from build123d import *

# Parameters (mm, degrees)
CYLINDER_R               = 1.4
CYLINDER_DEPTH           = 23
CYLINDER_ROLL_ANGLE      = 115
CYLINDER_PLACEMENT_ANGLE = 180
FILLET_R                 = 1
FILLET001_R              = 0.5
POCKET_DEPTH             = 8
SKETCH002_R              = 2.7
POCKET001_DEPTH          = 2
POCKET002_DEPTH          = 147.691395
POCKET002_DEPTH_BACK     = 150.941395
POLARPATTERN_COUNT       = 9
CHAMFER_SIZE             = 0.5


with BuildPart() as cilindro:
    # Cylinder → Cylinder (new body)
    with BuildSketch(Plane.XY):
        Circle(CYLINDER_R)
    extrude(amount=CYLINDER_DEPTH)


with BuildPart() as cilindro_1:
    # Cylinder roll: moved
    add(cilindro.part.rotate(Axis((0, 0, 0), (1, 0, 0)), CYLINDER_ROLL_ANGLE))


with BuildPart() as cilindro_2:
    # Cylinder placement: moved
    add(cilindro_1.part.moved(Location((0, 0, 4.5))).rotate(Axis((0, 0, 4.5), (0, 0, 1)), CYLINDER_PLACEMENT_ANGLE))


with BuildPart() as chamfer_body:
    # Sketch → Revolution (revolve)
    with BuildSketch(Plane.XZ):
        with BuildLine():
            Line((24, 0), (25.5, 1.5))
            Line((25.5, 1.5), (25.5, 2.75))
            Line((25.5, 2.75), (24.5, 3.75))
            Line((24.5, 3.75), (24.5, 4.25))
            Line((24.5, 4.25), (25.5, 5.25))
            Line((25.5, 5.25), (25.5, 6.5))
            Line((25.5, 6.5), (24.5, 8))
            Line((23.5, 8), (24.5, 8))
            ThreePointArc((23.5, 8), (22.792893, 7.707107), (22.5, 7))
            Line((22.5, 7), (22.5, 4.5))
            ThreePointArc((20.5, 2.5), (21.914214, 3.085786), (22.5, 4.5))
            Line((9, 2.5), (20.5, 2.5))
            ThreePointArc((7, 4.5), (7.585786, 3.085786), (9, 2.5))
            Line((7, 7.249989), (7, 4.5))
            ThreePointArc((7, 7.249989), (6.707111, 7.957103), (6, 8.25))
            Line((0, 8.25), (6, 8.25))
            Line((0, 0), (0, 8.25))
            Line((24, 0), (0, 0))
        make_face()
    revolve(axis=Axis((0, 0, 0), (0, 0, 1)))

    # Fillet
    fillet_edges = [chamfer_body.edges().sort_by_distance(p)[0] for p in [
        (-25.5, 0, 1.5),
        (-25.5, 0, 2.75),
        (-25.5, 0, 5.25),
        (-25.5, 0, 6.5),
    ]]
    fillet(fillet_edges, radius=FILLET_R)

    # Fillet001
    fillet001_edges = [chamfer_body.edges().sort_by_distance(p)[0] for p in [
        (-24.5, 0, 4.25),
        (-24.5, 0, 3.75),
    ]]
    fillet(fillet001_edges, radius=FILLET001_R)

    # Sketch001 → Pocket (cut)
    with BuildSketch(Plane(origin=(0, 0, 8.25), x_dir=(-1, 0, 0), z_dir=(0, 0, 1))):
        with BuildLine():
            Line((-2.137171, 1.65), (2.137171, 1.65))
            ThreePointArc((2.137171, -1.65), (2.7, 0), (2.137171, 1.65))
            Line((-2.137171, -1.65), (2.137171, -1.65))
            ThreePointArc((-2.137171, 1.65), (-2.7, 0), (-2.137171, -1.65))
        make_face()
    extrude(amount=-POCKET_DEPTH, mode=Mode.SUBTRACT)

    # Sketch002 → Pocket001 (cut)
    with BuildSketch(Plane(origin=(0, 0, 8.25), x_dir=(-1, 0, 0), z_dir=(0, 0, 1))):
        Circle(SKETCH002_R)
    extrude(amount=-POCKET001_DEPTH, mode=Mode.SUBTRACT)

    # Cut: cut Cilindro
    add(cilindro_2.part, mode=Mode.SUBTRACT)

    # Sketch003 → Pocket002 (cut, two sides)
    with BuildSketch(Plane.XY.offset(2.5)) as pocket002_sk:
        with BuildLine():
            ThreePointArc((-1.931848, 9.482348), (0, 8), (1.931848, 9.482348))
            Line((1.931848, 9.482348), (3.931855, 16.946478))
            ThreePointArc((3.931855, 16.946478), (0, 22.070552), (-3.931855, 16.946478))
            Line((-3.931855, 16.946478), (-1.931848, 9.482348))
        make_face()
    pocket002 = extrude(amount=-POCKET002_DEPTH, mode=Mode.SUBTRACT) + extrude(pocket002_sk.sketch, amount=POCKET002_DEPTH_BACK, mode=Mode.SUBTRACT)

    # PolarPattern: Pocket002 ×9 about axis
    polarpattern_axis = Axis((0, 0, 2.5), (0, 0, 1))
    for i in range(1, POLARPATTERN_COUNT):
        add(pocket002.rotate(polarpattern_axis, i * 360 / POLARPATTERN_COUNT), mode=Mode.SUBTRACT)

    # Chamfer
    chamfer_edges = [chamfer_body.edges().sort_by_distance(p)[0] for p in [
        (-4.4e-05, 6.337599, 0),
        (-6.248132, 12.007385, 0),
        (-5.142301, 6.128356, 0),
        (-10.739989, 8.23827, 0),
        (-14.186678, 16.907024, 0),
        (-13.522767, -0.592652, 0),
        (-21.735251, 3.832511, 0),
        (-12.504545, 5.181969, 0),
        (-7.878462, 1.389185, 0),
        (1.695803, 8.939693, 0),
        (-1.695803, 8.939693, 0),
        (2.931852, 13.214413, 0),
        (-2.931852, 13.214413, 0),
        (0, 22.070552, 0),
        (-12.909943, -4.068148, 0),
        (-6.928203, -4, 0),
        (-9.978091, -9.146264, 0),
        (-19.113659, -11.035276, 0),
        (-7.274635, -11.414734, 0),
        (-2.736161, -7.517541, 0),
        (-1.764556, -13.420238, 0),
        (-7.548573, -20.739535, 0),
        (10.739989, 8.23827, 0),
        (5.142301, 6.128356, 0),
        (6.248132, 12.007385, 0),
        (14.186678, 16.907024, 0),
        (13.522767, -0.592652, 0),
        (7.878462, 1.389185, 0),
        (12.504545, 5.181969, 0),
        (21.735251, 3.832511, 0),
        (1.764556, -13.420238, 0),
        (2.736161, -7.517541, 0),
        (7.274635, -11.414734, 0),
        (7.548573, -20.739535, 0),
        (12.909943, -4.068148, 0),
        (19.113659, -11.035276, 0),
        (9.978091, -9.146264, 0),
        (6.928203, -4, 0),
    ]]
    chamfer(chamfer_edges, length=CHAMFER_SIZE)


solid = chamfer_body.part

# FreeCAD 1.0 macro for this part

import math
import FreeCAD as App
import Part
import Sketcher

V = App.Vector
Q = App.Units.Quantity


def edges_at(feature, points):
    """Names of the edges that pass closest to the given points."""
    edges = feature.Shape.Edges
    near = lambda p: min(range(len(edges)), key=lambda i: edges[i].distToShape(Part.Vertex(*p))[0])
    return sorted({f"Edge{near(p) + 1}" for p in points})

doc = App.newDocument("Part")
body = doc.addObject("PartDesign::Body", "Body")

sketch1 = body.newObject("Sketcher::SketchObject", "Sketch")
sketch1.AttachmentSupport = (doc.getObject("XY_Plane"), [""])
sketch1.MapMode = "FlatFace"
sketch1.addGeometry(Part.Circle(V(0, 0, 0), V(0, 0, 1), 1.4), False)
sketch1.addConstraint([
    Sketcher.Constraint("Coincident", 0, 3, -1, 1),
    Sketcher.Constraint("Diameter", 0, 2.8),
])
pad1 = body.newObject("PartDesign::Pad", "Pad")
pad1.Profile = sketch1
pad1.Length = 23
body2 = doc.addObject("PartDesign::Body", "Body001")
doc.recompute()

body.Placement = App.Placement(V(0, 0, 0), App.Rotation(V(1, 0, 0), 115))
boolean = body2.newObject("PartDesign::Boolean", "Boolean")
boolean.Type = "Fuse"
boolean.addObjects([body])
body3 = doc.addObject("PartDesign::Body", "Body002")
doc.recompute()

body2.Placement = App.Placement(V(0, 0, 4.5), App.Rotation(V(0, 0, 1), 180))
boolean2 = body3.newObject("PartDesign::Boolean", "Boolean001")
boolean2.Type = "Fuse"
boolean2.addObjects([body2])
body4 = doc.addObject("PartDesign::Body", "Body003")

sketch2 = body4.newObject("Sketcher::SketchObject", "Sketch001")
sketch2.AttachmentSupport = (doc.getObject("XZ_Plane003"), [""])
sketch2.MapMode = "FlatFace"
sketch2.addGeometry([
    Part.LineSegment(V(24, 0, 0), V(25.5, 1.5, 0)),
    Part.LineSegment(V(25.5, 1.5, 0), V(25.5, 2.8, 0)),
    Part.LineSegment(V(25.5, 2.8, 0), V(24.5, 3.8, 0)),
    Part.LineSegment(V(24.5, 3.8, 0), V(24.5, 4.2, 0)),
    Part.LineSegment(V(24.5, 4.2, 0), V(25.5, 5.2, 0)),
    Part.LineSegment(V(25.5, 5.2, 0), V(25.5, 6.5, 0)),
    Part.LineSegment(V(25.5, 6.5, 0), V(24.5, 8, 0)),
    Part.LineSegment(V(24.5, 8, 0), V(23.5, 8, 0)),
    Part.ArcOfCircle(Part.Circle(V(23.5, 7, 0), V(0, 0, 1), 1), math.radians(90), math.radians(180)),
    Part.LineSegment(V(22.5, 7, 0), V(22.5, 4.5, 0)),
    Part.ArcOfCircle(Part.Circle(V(20.5, 4.5, 0), V(0, 0, 1), 2), math.radians(-90), math.radians(0)),
    Part.LineSegment(V(20.5, 2.5, 0), V(9, 2.5, 0)),
    Part.ArcOfCircle(Part.Circle(V(9, 4.5, 0), V(0, 0, 1), 2), math.radians(180), math.radians(270)),
    Part.LineSegment(V(7, 4.5, 0), V(7, 7.2, 0)),
    Part.ArcOfCircle(Part.Circle(V(6, 7.3, 0), V(0, 0, 1), 1), math.radians(0), math.radians(90)),
    Part.LineSegment(V(6, 8.2, 0), V(0, 8.2, 0)),
    Part.LineSegment(V(0, 8.2, 0), V(0, 0, 0)),
    Part.LineSegment(V(0, 0, 0), V(24, 0, 0)),
], False)
sketch2.addConstraint([
    Sketcher.Constraint("Coincident", 0, 2, 1, 1),
    Sketcher.Constraint("Coincident", 1, 2, 2, 1),
    Sketcher.Constraint("Coincident", 2, 2, 3, 1),
    Sketcher.Constraint("Coincident", 3, 2, 4, 1),
    Sketcher.Constraint("Coincident", 4, 2, 5, 1),
    Sketcher.Constraint("Coincident", 5, 2, 6, 1),
    Sketcher.Constraint("Coincident", 6, 2, 7, 1),
    Sketcher.Constraint("Tangent", 7, 2, 8, 1),
    Sketcher.Constraint("Tangent", 8, 2, 9, 1),
    Sketcher.Constraint("Tangent", 9, 2, 10, 2),
    Sketcher.Constraint("Tangent", 10, 1, 11, 1),
    Sketcher.Constraint("Tangent", 11, 2, 12, 2),
    Sketcher.Constraint("Tangent", 12, 1, 13, 1),
    Sketcher.Constraint("Coincident", 13, 2, 14, 1),
    Sketcher.Constraint("Tangent", 14, 2, 15, 1),
    Sketcher.Constraint("Coincident", 15, 2, 16, 1),
    Sketcher.Constraint("Coincident", 16, 2, 17, 1),
    Sketcher.Constraint("Coincident", 17, 2, 0, 1),
    Sketcher.Constraint("Vertical", 1),
    Sketcher.Constraint("Vertical", 3),
    Sketcher.Constraint("Vertical", 5),
    Sketcher.Constraint("Horizontal", 7),
    Sketcher.Constraint("Vertical", 9),
    Sketcher.Constraint("Horizontal", 11),
    Sketcher.Constraint("Vertical", 13),
    Sketcher.Constraint("Horizontal", 15),
    Sketcher.Constraint("Vertical", 16),
    Sketcher.Constraint("Horizontal", 17),
    Sketcher.Constraint("Coincident", 16, 2, -1, 1),
    Sketcher.Constraint("Equal", 10, 12),
    Sketcher.Constraint("Equal", 8, 14),
    Sketcher.Constraint("Perpendicular", 0, 2),
    Sketcher.Constraint("Perpendicular", 2, 4),
    Sketcher.Constraint("Vertical", 1, 2, 4, 2),
    Sketcher.Constraint("Vertical", 3, 2, 6, 2),
    Sketcher.Constraint("Equal", 1, 5),
    Sketcher.Constraint("Equal", 2, 4),
    Sketcher.Constraint("Radius", 8, 0.999999),
    Sketcher.Constraint("Radius", 10, 1.999999),
    Sketcher.Constraint("DistanceX", 7, 2, 7, 1, 1.0),
    Sketcher.Constraint("DistanceX", 15, 2, 15, 1, 6.0),
    Sketcher.Constraint("DistanceX", 17, 1, 17, 2, 24.0),
    Sketcher.Constraint("DistanceX", 11, 2, 11, 1, 11.5),
    Sketcher.Constraint("DistanceY", 3, 1, 3, 2, 0.5),
    Sketcher.Constraint("DistanceY", 9, 2, 9, 1, 2.5),
    Sketcher.Constraint("DistanceY", -1, 1, 8, 3, 7.000001),
    Sketcher.Constraint("DistanceX", 10, 3, 0, 2, 4.999999),
    Sketcher.Constraint("DistanceY", 1, 1, 1, 2, 1.25),
    Sketcher.Constraint("DistanceY", 16, 2, 16, 1, 8.25),
    Sketcher.Constraint("DistanceY", 13, 1, 13, 2, 2.749989),
])
revolution = body4.newObject("PartDesign::Revolution", "Revolution")
revolution.Profile = sketch2
revolution.ReferenceAxis = (sketch2, ["V_Axis"])
revolution.Angle = 360
doc.recompute()

fillet = body4.newObject("PartDesign::Fillet", "Fillet")
fillet.Base = (revolution, edges_at(revolution, [
    (-25.5, 0, 1.5),
    (-25.5, 0, 2.75),
    (-25.5, 0, 5.25),
    (-25.5, 0, 6.5),
]))
fillet.Radius = 1
doc.recompute()

fillet2 = body4.newObject("PartDesign::Fillet", "Fillet001")
fillet2.Base = (fillet, edges_at(fillet, [(-24.5, 0, 4.25), (-24.5, 0, 3.75)]))
fillet2.Radius = 0.5

sketch3 = body4.newObject("Sketcher::SketchObject", "Sketch002")
sketch3.AttachmentSupport = (doc.getObject("XY_Plane003"), [""])
sketch3.MapMode = "FlatFace"
sketch3.AttachmentOffset = App.Placement(V(0, 0, 8.25), App.Rotation())
sketch3.addGeometry([
    Part.LineSegment(V(-2.1, -1.6, 0), V(2.1, -1.6, 0)),
    Part.ArcOfCircle(Part.Circle(V(0, 0, 0), V(0, 0, 1), 2.7), math.radians(-38), math.radians(38)),
    Part.LineSegment(V(2.1, 1.6, 0), V(-2.1, 1.6, 0)),
    Part.ArcOfCircle(Part.Circle(V(0, 0, 0), V(0, 0, 1), 2.7), math.radians(142), math.radians(218)),
], False)
sketch3.addConstraint([
    Sketcher.Constraint("Coincident", 0, 2, 1, 1),
    Sketcher.Constraint("Coincident", 1, 2, 2, 1),
    Sketcher.Constraint("Coincident", 2, 2, 3, 1),
    Sketcher.Constraint("Coincident", 3, 2, 0, 1),
    Sketcher.Constraint("Horizontal", 0),
    Sketcher.Constraint("Horizontal", 2),
    Sketcher.Constraint("Coincident", 1, 3, -1, 1),
    Sketcher.Constraint("Coincident", 3, 3, -1, 1),
    Sketcher.Constraint("Equal", 1, 3),
    Sketcher.Constraint("Vertical", 0, 2, 1, 2),
    Sketcher.Constraint("Radius", 1, 2.7),
    Sketcher.Constraint("DistanceY", 0, 2, 1, 2, 3.3),
])
pocket1 = body4.newObject("PartDesign::Pocket", "Pocket")
pocket1.Profile = sketch3
pocket1.Length = 8

sketch4 = body4.newObject("Sketcher::SketchObject", "Sketch003")
sketch4.AttachmentSupport = (doc.getObject("XY_Plane003"), [""])
sketch4.MapMode = "FlatFace"
sketch4.AttachmentOffset = App.Placement(V(0, 0, 8.25), App.Rotation())
sketch4.addGeometry(Part.Circle(V(0, 0, 0), V(0, 0, 1), 2.7), False)
sketch4.addConstraint([
    Sketcher.Constraint("Coincident", 0, 3, -1, 1),
    Sketcher.Constraint("Diameter", 0, 5.4),
])
pocket2 = body4.newObject("PartDesign::Pocket", "Pocket001")
pocket2.Profile = sketch4
pocket2.Length = 2
doc.recompute()

boolean3 = body4.newObject("PartDesign::Boolean", "Boolean002")
boolean3.Type = "Cut"
boolean3.addObjects([body3])

sketch5 = body4.newObject("Sketcher::SketchObject", "Sketch004")
sketch5.AttachmentSupport = (doc.getObject("XY_Plane003"), [""])
sketch5.MapMode = "FlatFace"
sketch5.AttachmentOffset = App.Placement(V(0, 0, 2.5), App.Rotation())
sketch5.addGeometry([
    Part.ArcOfCircle(Part.Circle(V(0, 10, 0), V(0, 0, 1), 2), math.radians(-165), math.radians(-15)),
    Part.LineSegment(V(1.9, 9.5, 0), V(3.9, 16.9, 0)),
    Part.ArcOfCircle(Part.Circle(V(0, 18, 0), V(0, 0, 1), 4.1), math.radians(-15), math.radians(195)),
    Part.LineSegment(V(-3.9, 16.9, 0), V(-1.9, 9.5, 0)),
], False)
sketch5.addConstraint([
    Sketcher.Constraint("Coincident", 0, 2, 1, 1),
    Sketcher.Constraint("Coincident", 1, 2, 2, 1),
    Sketcher.Constraint("Coincident", 2, 2, 3, 1),
    Sketcher.Constraint("Coincident", 3, 2, 0, 1),
    Sketcher.Constraint("Symmetric", 1, 2, 2, 2, -2),
    Sketcher.Constraint("Symmetric", 0, 2, 3, 2, -2),
    Sketcher.Constraint("Radius", 0, 2.0),
    Sketcher.Constraint("Angle", 1, Q("75.000004 deg")),
    Sketcher.Constraint("DistanceY", -1, 1, 0, 3, 10.0),
    Sketcher.Constraint("DistanceY", -1, 1, 2, 3, 18.0),
    Sketcher.Constraint("DistanceY", -1, 1, 0, 2, 9.482348),
    Sketcher.Constraint("DistanceY", -1, 1, 2, 2, 16.946478),
])
pocket3 = body4.newObject("PartDesign::Pocket", "Pocket002")
pocket3.Profile = sketch5
pocket3.Type = "ThroughAll"
pocket3.Midplane = True
doc.recompute()

polarpattern = body4.newObject("PartDesign::PolarPattern", "PolarPattern")
polarpattern.Originals = [pocket3]
polarpattern.Axis = (doc.getObject("Z_Axis003"), [""])
polarpattern.Angle = 360
polarpattern.Occurrences = 9
body4.Tip = polarpattern
doc.recompute()

chamfer = body4.newObject("PartDesign::Chamfer", "Chamfer")
chamfer.Base = (polarpattern, edges_at(polarpattern, [
    (0, 6.338, 0),
    (-6.248, 12.007, 0),
    (-5.142, 6.128, 0),
    (-10.74, 8.238, 0),
    (-14.187, 16.907, 0),
    (-13.523, -0.593, 0),
    (-21.735, 3.833, 0),
    (-12.505, 5.182, 0),
    (-7.878, 1.389, 0),
    (1.696, 8.94, 0),
    (-1.696, 8.94, 0),
    (2.932, 13.214, 0),
    (-2.932, 13.214, 0),
    (0, 22.071, 0),
    (-12.91, -4.068, 0),
    (-6.928, -4, 0),
    (-9.978, -9.146, 0),
    (-19.114, -11.035, 0),
    (-7.275, -11.415, 0),
    (-2.736, -7.518, 0),
    (-1.765, -13.42, 0),
    (-7.549, -20.74, 0),
    (10.74, 8.238, 0),
    (5.142, 6.128, 0),
    (6.248, 12.007, 0),
    (14.187, 16.907, 0),
    (13.523, -0.593, 0),
    (7.878, 1.389, 0),
    (12.505, 5.182, 0),
    (21.735, 3.833, 0),
    (1.765, -13.42, 0),
    (2.736, -7.518, 0),
    (7.275, -11.415, 0),
    (7.549, -20.74, 0),
    (12.91, -4.068, 0),
    (19.114, -11.035, 0),
    (9.978, -9.146, 0),
    (6.928, -4, 0),
]))
chamfer.Size = 0.5

doc.recompute()
